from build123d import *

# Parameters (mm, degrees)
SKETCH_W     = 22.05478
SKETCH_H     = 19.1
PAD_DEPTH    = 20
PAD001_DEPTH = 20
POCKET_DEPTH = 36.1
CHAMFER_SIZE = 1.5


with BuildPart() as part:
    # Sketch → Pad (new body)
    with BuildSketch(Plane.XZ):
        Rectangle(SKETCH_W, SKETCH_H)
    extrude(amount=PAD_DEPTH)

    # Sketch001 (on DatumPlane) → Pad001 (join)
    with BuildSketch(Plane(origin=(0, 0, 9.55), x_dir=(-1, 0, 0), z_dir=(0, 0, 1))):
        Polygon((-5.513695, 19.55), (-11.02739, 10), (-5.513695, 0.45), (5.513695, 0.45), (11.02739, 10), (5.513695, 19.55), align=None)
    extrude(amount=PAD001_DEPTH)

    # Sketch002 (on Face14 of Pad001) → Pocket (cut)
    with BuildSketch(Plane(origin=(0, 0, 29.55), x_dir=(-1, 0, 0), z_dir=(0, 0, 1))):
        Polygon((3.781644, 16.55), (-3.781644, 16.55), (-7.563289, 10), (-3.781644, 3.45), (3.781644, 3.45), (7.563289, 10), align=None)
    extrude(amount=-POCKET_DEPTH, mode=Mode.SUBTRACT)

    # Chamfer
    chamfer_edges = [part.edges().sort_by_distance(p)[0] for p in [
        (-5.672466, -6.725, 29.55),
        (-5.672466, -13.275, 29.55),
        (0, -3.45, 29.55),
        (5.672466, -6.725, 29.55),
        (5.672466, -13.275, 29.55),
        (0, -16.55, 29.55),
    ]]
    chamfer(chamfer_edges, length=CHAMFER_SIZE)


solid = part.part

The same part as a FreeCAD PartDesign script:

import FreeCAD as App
import Part
import Sketcher
Q = App.Units.Quantity


def edges_at(feature, points):
    """Names of the edges that pass closest to the given points."""
    edges = feature.Shape.Edges
    near = lambda p: min(range(len(edges)), key=lambda i: edges[i].distToShape(Part.Vertex(*p))[0])
    return sorted({f"Edge{near(p) + 1}" for p in points})

doc = App.newDocument("Part")
body = doc.addObject("PartDesign::Body", "Body")

sketch1 = body.newObject("Sketcher::SketchObject", "Sketch")
sketch1.AttachmentSupport = (doc.getObject("XZ_Plane"), [""])
sketch1.MapMode = "FlatFace"
sketch1.addGeometry([
    Part.LineSegment(App.Vector(-11, 10, 0), App.Vector(-11, -10, 0)),
    Part.LineSegment(App.Vector(-11, -10, 0), App.Vector(11, -10, 0)),
    Part.LineSegment(App.Vector(11, -10, 0), App.Vector(11, 10, 0)),
    Part.LineSegment(App.Vector(11, 10, 0), App.Vector(-11, 10, 0)),
], False)
sketch1.addConstraint([
    Sketcher.Constraint("Coincident", 0, 2, 1, 1),
    Sketcher.Constraint("Coincident", 1, 2, 2, 1),
    Sketcher.Constraint("Coincident", 2, 2, 3, 1),
    Sketcher.Constraint("Coincident", 3, 2, 0, 1),
    Sketcher.Constraint("Vertical", 0),
    Sketcher.Constraint("Horizontal", 1),
    Sketcher.Constraint("Vertical", 2),
    Sketcher.Constraint("Horizontal", 3),
    Sketcher.Constraint("Symmetric", 0, 2, 2, 2, -1, 1),
    Sketcher.Constraint("DistanceY", 0, 2, 0, 1, 19.1),
    Sketcher.Constraint("DistanceX", 1, 1, 1, 2, 22.05478),
])
pad1 = body.newObject("PartDesign::Pad", "Pad")
pad1.Profile = sketch1
pad1.Length = 20

sketch2 = body.newObject("Sketcher::SketchObject", "Sketch001")
sketch2.AttachmentSupport = (doc.getObject("XY_Plane"), [""])
sketch2.MapMode = "FlatFace"
sketch2.AttachmentOffset = App.Placement(App.Vector(0, 0, 9.55), App.Rotation())
sketch2.addGeometry([
    Part.LineSegment(App.Vector(6, -20, 0), App.Vector(11, -10, 0)),
    Part.LineSegment(App.Vector(11, -10, 0), App.Vector(6, 0, 0)),
    Part.LineSegment(App.Vector(6, 0, 0), App.Vector(-6, 0, 0)),
    Part.LineSegment(App.Vector(-6, 0, 0), App.Vector(-11, -10, 0)),
    Part.LineSegment(App.Vector(-11, -10, 0), App.Vector(-6, -20, 0)),
    Part.LineSegment(App.Vector(-6, -20, 0), App.Vector(6, -20, 0)),
], False)
sketch2.addConstraint([
    Sketcher.Constraint("Coincident", 0, 2, 1, 1),
    Sketcher.Constraint("Coincident", 1, 2, 2, 1),
    Sketcher.Constraint("Coincident", 2, 2, 3, 1),
    Sketcher.Constraint("Coincident", 3, 2, 4, 1),
    Sketcher.Constraint("Coincident", 4, 2, 5, 1),
    Sketcher.Constraint("Coincident", 5, 2, 0, 1),
    Sketcher.Constraint("Horizontal", 2),
    Sketcher.Constraint("Horizontal", 5),
    Sketcher.Constraint("Symmetric", 0, 2, 3, 2, -2),
    Sketcher.Constraint("Parallel", 0, 3),
    Sketcher.Constraint("Parallel", 1, 4),
    Sketcher.Constraint("Vertical", 2, 2, 4, 2),
    Sketcher.Constraint("Vertical", 1, 2, 5, 2),
    Sketcher.Constraint("Angle", 0, Q("60 deg")),
    Sketcher.Constraint("DistanceY", 0, 2, -1, 1, 10.0),
    Sketcher.Constraint("DistanceY", 4, 2, 2, 2, 19.1),
    Sketcher.Constraint("DistanceX", 2, 2, 2, 1, 11.02739),
])
pad2 = body.newObject("PartDesign::Pad", "Pad001")
pad2.Profile = sketch2
pad2.Length = 20

sketch3 = body.newObject("Sketcher::SketchObject", "Sketch002")
sketch3.AttachmentSupport = (doc.getObject("XY_Plane"), [""])
sketch3.MapMode = "FlatFace"
sketch3.AttachmentOffset = App.Placement(App.Vector(0, 0, 29.55), App.Rotation())
sketch3.addGeometry([
    Part.LineSegment(App.Vector(-4, -17, 0), App.Vector(4, -17, 0)),
    Part.LineSegment(App.Vector(4, -17, 0), App.Vector(8, -10, 0)),
    Part.LineSegment(App.Vector(8, -10, 0), App.Vector(4, -3, 0)),
    Part.LineSegment(App.Vector(4, -3, 0), App.Vector(-4, -3, 0)),
    Part.LineSegment(App.Vector(-4, -3, 0), App.Vector(-8, -10, 0)),
    Part.LineSegment(App.Vector(-8, -10, 0), App.Vector(-4, -17, 0)),
], False)
sketch3.addConstraint([
    Sketcher.Constraint("Coincident", 0, 2, 1, 1),
    Sketcher.Constraint("Coincident", 1, 2, 2, 1),
    Sketcher.Constraint("Coincident", 2, 2, 3, 1),
    Sketcher.Constraint("Coincident", 3, 2, 4, 1),
    Sketcher.Constraint("Coincident", 4, 2, 5, 1),
    Sketcher.Constraint("Coincident", 5, 2, 0, 1),
    Sketcher.Constraint("Horizontal", 0),
    Sketcher.Constraint("Horizontal", 3),
    Sketcher.Constraint("Symmetric", 1, 2, 4, 2, -2),
    Sketcher.Constraint("Parallel", 1, 4),
    Sketcher.Constraint("Parallel", 2, 5),
    Sketcher.Constraint("Vertical", 0, 2, 2, 2),
    Sketcher.Constraint("Vertical", 3, 2, 5, 2),
    Sketcher.Constraint("Angle", 1, Q("59.999995 deg")),
    Sketcher.Constraint("DistanceY", 1, 2, -1, 1, 10.0),
    Sketcher.Constraint("DistanceY", 0, 2, 2, 2, 13.1),
    Sketcher.Constraint("DistanceX", 0, 1, 0, 2, 7.563288),
])
pocket1 = body.newObject("PartDesign::Pocket", "Pocket")
pocket1.Profile = sketch3
pocket1.Length = 36.1
doc.recompute()

chamfer = body.newObject("PartDesign::Chamfer", "Chamfer")
chamfer.Base = (pocket1, edges_at(pocket1, [
    (-5.672, -6.725, 29.55),
    (-5.672, -13.275, 29.55),
    (0, -3.45, 29.55),
    (5.672, -6.725, 29.55),
    (5.672, -13.275, 29.55),
    (0, -16.55, 29.55),
]))
chamfer.Size = 1.5

doc.recompute()
